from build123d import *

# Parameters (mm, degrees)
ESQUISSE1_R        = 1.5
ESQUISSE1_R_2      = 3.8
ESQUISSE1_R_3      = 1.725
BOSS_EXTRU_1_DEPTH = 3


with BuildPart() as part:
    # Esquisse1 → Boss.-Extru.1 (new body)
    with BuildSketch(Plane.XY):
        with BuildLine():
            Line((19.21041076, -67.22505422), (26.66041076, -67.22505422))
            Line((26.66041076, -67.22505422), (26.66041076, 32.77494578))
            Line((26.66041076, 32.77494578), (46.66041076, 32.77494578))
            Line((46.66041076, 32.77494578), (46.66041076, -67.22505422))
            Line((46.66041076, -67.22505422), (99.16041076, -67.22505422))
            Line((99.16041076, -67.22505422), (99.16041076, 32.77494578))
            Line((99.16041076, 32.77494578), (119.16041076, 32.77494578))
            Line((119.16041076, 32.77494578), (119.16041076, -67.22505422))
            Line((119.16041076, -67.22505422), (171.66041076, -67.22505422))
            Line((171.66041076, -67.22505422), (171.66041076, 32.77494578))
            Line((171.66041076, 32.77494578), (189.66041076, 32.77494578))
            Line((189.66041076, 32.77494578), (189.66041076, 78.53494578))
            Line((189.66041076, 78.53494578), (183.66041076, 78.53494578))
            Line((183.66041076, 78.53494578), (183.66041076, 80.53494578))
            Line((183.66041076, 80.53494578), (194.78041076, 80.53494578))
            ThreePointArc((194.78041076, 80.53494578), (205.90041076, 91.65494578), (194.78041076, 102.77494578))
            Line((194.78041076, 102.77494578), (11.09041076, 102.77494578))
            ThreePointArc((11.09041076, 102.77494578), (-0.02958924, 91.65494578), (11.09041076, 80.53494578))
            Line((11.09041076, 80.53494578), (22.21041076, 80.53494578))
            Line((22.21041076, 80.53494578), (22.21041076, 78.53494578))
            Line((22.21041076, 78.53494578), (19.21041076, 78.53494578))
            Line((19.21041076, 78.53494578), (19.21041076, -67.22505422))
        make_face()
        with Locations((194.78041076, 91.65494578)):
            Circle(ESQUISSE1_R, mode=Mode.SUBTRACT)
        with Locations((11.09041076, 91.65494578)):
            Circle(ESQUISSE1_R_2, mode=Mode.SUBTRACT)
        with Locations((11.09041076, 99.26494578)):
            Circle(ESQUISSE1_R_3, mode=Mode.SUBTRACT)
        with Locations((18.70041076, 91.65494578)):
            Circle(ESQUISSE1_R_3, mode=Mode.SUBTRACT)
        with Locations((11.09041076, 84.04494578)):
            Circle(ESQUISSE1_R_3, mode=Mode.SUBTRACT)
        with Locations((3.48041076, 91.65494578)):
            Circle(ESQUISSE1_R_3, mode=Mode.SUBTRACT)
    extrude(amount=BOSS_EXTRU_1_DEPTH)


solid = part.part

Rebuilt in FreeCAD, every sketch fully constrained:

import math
import FreeCAD as App
import Part
import Sketcher
from FreeCAD import Vector

doc = App.newDocument("Part")
body = doc.addObject("PartDesign::Body", "Body")

# Sketch on XY plane
sketch1 = doc.addObject("Sketcher::SketchObject", "Sketch")
body.addObject(sketch1)
sketch1.AttachmentSupport = (doc.XY_Plane, [""])
sketch1.MapMode = "FlatFace"
sketch1.addGeometry([
    Part.LineSegment(Vector(19.2, -67.2, 0), Vector(26.7, -67.2, 0)),  # 0
    Part.LineSegment(Vector(26.7, -67.2, 0), Vector(26.7, 32.8, 0)),  # 1
    Part.LineSegment(Vector(26.7, 32.8, 0), Vector(46.7, 32.8, 0)),  # 2
    Part.LineSegment(Vector(46.7, 32.8, 0), Vector(46.7, -67.2, 0)),  # 3
    Part.LineSegment(Vector(46.7, -67.2, 0), Vector(99.2, -67.2, 0)),  # 4
    Part.LineSegment(Vector(99.2, -67.2, 0), Vector(99.2, 32.8, 0)),  # 5
    Part.LineSegment(Vector(99.2, 32.8, 0), Vector(119.2, 32.8, 0)),  # 6
    Part.LineSegment(Vector(119.2, 32.8, 0), Vector(119.2, -67.2, 0)),  # 7
    Part.LineSegment(Vector(119.2, -67.2, 0), Vector(171.7, -67.2, 0)),  # 8
    Part.LineSegment(Vector(171.7, -67.2, 0), Vector(171.7, 32.8, 0)),  # 9
    Part.LineSegment(Vector(171.7, 32.8, 0), Vector(189.7, 32.8, 0)),  # 10
    Part.LineSegment(Vector(189.7, 32.8, 0), Vector(189.7, 78.5, 0)),  # 11
    Part.LineSegment(Vector(189.7, 78.5, 0), Vector(183.7, 78.5, 0)),  # 12
    Part.LineSegment(Vector(183.7, 78.5, 0), Vector(183.7, 80.5, 0)),  # 13
    Part.LineSegment(Vector(183.7, 80.5, 0), Vector(194.8, 80.5, 0)),  # 14
    Part.ArcOfCircle(Part.Circle(Vector(194.8, 91.7, 0), Vector(0, 0, 1), 11.1), math.radians(-90), math.radians(90)),  # 15
    Part.LineSegment(Vector(194.8, 102.8, 0), Vector(11.1, 102.8, 0)),  # 16
    Part.ArcOfCircle(Part.Circle(Vector(11.1, 91.7, 0), Vector(0, 0, 1), 11.1), math.radians(90), math.radians(270)),  # 17
    Part.LineSegment(Vector(11.1, 80.5, 0), Vector(22.2, 80.5, 0)),  # 18
    Part.LineSegment(Vector(22.2, 80.5, 0), Vector(22.2, 78.5, 0)),  # 19
    Part.LineSegment(Vector(22.2, 78.5, 0), Vector(19.2, 78.5, 0)),  # 20
    Part.LineSegment(Vector(19.2, 78.5, 0), Vector(19.2, -67.2, 0)),  # 21
    Part.Circle(Vector(11.1, 84, 0), Vector(0, 0, 1), 1.7),  # 22
    Part.Circle(Vector(3.5, 91.7, 0), Vector(0, 0, 1), 1.7),  # 23
    Part.Circle(Vector(11.1, 91.7, 0), Vector(0, 0, 1), 3.8),  # 24
    Part.Circle(Vector(18.7, 91.7, 0), Vector(0, 0, 1), 1.7),  # 25
    Part.Circle(Vector(11.1, 99.3, 0), Vector(0, 0, 1), 1.7),  # 26
    Part.Circle(Vector(194.8, 91.7, 0), Vector(0, 0, 1), 1.5),  # 27
], False)
sketch1.addConstraint([
    Sketcher.Constraint("Coincident", 0, 2, 1, 1),
    Sketcher.Constraint("Coincident", 1, 2, 2, 1),
    Sketcher.Constraint("Coincident", 2, 2, 3, 1),
    Sketcher.Constraint("Coincident", 3, 2, 4, 1),
    Sketcher.Constraint("Coincident", 4, 2, 5, 1),
    Sketcher.Constraint("Coincident", 5, 2, 6, 1),
    Sketcher.Constraint("Coincident", 6, 2, 7, 1),
    Sketcher.Constraint("Coincident", 7, 2, 8, 1),
    Sketcher.Constraint("Coincident", 8, 2, 9, 1),
    Sketcher.Constraint("Coincident", 9, 2, 10, 1),
    Sketcher.Constraint("Coincident", 10, 2, 11, 1),
    Sketcher.Constraint("Coincident", 11, 2, 12, 1),
    Sketcher.Constraint("Coincident", 12, 2, 13, 1),
    Sketcher.Constraint("Coincident", 13, 2, 14, 1),
    Sketcher.Constraint("Tangent", 14, 2, 15, 1),
    Sketcher.Constraint("Tangent", 15, 2, 16, 1),
    Sketcher.Constraint("Tangent", 16, 2, 17, 1),
    Sketcher.Constraint("Tangent", 17, 2, 18, 1),
    Sketcher.Constraint("Coincident", 18, 2, 19, 1),
    Sketcher.Constraint("Coincident", 19, 2, 20, 1),
    Sketcher.Constraint("Coincident", 20, 2, 21, 1),
    Sketcher.Constraint("Coincident", 21, 2, 0, 1),
    Sketcher.Constraint("Horizontal", 0),
    Sketcher.Constraint("Vertical", 1),
    Sketcher.Constraint("Horizontal", 2),
    Sketcher.Constraint("Vertical", 3),
    Sketcher.Constraint("Horizontal", 4),
    Sketcher.Constraint("Vertical", 5),
    Sketcher.Constraint("Horizontal", 6),
    Sketcher.Constraint("Vertical", 7),
    Sketcher.Constraint("Horizontal", 8),
    Sketcher.Constraint("Vertical", 9),
    Sketcher.Constraint("Horizontal", 10),
    Sketcher.Constraint("Vertical", 11),
    Sketcher.Constraint("Horizontal", 12),
    Sketcher.Constraint("Vertical", 13),
    Sketcher.Constraint("Horizontal", 14),
    Sketcher.Constraint("Horizontal", 16),
    Sketcher.Constraint("Horizontal", 18),
    Sketcher.Constraint("Vertical", 19),
    Sketcher.Constraint("Horizontal", 20),
    Sketcher.Constraint("Vertical", 21),
    Sketcher.Constraint("Coincident", 24, 3, 17, 3),
    Sketcher.Constraint("Coincident", 27, 3, 15, 3),
    Sketcher.Constraint("Equal", 15, 17),
    Sketcher.Constraint("Equal", 22, 23),
    Sketcher.Constraint("Equal", 23, 25),
    Sketcher.Constraint("Equal", 25, 26),
    Sketcher.Constraint("Horizontal", 17, 3, 23, 3),
    Sketcher.Constraint("Horizontal", 24, 3, 25, 3),
    Sketcher.Constraint("Horizontal", 0, 2, 3, 2),
    Sketcher.Constraint("Horizontal", 2, 2, 5, 2),
    Sketcher.Constraint("Horizontal", 4, 2, 7, 2),
    Sketcher.Constraint("Horizontal", 6, 2, 9, 2),
    Sketcher.Constraint("Horizontal", 12, 2, 19, 2),
    Sketcher.Constraint("Vertical", 17, 3, 22, 3),
    Sketcher.Constraint("Vertical", 24, 3, 26, 3),
    Sketcher.Constraint("Equal", 2, 6),
    Sketcher.Constraint("Equal", 4, 8),
    Sketcher.Constraint("Equal", 14, 18),
    Sketcher.Constraint("Diameter", 27, 3.0),
    Sketcher.Constraint("Diameter", 24, 7.6),
    Sketcher.Constraint("Diameter", 22, 3.45),
    Sketcher.Constraint("DistanceX", 2, 1, 2, 2, 20.0),
    Sketcher.Constraint("DistanceX", 10, 1, 10, 2, 18.0),
    Sketcher.Constraint("DistanceX", 12, 2, 12, 1, 6.0),
    Sketcher.Constraint("DistanceX", 20, 2, 20, 1, 3.0),
    Sketcher.Constraint("DistanceY", 1, 1, 1, 2, 100.0),
    Sketcher.Constraint("DistanceY", 13, 1, 13, 2, 2.0),
    Sketcher.Constraint("Radius", 15, 11.12),
    Sketcher.Constraint("DistanceX", 4, 1, 4, 2, 52.5),
    Sketcher.Constraint("DistanceX", 0, 1, 0, 2, 7.45),
    Sketcher.Constraint("DistanceX", 14, 1, 14, 2, 11.12),
    Sketcher.Constraint("DistanceY", 11, 1, 11, 2, 45.76),
    Sketcher.Constraint("DistanceX", 23, 3, 15, 3, 191.3),
    Sketcher.Constraint("DistanceY", 22, 3, 17, 3, 7.61),
    Sketcher.Constraint("DistanceX", 17, 3, 25, 3, 7.61),
    Sketcher.Constraint("DistanceY", 17, 3, 26, 3, 7.61),
    Sketcher.Constraint("DistanceX", -1, 1, 15, 3, 194.780411),
    Sketcher.Constraint("DistanceY", -1, 1, 15, 3, 91.654946),
])
pad1 = doc.addObject("PartDesign::Pad", "Pad")
body.addObject(pad1)
pad1.Profile = sketch1
pad1.Length = 3

doc.recompute()
